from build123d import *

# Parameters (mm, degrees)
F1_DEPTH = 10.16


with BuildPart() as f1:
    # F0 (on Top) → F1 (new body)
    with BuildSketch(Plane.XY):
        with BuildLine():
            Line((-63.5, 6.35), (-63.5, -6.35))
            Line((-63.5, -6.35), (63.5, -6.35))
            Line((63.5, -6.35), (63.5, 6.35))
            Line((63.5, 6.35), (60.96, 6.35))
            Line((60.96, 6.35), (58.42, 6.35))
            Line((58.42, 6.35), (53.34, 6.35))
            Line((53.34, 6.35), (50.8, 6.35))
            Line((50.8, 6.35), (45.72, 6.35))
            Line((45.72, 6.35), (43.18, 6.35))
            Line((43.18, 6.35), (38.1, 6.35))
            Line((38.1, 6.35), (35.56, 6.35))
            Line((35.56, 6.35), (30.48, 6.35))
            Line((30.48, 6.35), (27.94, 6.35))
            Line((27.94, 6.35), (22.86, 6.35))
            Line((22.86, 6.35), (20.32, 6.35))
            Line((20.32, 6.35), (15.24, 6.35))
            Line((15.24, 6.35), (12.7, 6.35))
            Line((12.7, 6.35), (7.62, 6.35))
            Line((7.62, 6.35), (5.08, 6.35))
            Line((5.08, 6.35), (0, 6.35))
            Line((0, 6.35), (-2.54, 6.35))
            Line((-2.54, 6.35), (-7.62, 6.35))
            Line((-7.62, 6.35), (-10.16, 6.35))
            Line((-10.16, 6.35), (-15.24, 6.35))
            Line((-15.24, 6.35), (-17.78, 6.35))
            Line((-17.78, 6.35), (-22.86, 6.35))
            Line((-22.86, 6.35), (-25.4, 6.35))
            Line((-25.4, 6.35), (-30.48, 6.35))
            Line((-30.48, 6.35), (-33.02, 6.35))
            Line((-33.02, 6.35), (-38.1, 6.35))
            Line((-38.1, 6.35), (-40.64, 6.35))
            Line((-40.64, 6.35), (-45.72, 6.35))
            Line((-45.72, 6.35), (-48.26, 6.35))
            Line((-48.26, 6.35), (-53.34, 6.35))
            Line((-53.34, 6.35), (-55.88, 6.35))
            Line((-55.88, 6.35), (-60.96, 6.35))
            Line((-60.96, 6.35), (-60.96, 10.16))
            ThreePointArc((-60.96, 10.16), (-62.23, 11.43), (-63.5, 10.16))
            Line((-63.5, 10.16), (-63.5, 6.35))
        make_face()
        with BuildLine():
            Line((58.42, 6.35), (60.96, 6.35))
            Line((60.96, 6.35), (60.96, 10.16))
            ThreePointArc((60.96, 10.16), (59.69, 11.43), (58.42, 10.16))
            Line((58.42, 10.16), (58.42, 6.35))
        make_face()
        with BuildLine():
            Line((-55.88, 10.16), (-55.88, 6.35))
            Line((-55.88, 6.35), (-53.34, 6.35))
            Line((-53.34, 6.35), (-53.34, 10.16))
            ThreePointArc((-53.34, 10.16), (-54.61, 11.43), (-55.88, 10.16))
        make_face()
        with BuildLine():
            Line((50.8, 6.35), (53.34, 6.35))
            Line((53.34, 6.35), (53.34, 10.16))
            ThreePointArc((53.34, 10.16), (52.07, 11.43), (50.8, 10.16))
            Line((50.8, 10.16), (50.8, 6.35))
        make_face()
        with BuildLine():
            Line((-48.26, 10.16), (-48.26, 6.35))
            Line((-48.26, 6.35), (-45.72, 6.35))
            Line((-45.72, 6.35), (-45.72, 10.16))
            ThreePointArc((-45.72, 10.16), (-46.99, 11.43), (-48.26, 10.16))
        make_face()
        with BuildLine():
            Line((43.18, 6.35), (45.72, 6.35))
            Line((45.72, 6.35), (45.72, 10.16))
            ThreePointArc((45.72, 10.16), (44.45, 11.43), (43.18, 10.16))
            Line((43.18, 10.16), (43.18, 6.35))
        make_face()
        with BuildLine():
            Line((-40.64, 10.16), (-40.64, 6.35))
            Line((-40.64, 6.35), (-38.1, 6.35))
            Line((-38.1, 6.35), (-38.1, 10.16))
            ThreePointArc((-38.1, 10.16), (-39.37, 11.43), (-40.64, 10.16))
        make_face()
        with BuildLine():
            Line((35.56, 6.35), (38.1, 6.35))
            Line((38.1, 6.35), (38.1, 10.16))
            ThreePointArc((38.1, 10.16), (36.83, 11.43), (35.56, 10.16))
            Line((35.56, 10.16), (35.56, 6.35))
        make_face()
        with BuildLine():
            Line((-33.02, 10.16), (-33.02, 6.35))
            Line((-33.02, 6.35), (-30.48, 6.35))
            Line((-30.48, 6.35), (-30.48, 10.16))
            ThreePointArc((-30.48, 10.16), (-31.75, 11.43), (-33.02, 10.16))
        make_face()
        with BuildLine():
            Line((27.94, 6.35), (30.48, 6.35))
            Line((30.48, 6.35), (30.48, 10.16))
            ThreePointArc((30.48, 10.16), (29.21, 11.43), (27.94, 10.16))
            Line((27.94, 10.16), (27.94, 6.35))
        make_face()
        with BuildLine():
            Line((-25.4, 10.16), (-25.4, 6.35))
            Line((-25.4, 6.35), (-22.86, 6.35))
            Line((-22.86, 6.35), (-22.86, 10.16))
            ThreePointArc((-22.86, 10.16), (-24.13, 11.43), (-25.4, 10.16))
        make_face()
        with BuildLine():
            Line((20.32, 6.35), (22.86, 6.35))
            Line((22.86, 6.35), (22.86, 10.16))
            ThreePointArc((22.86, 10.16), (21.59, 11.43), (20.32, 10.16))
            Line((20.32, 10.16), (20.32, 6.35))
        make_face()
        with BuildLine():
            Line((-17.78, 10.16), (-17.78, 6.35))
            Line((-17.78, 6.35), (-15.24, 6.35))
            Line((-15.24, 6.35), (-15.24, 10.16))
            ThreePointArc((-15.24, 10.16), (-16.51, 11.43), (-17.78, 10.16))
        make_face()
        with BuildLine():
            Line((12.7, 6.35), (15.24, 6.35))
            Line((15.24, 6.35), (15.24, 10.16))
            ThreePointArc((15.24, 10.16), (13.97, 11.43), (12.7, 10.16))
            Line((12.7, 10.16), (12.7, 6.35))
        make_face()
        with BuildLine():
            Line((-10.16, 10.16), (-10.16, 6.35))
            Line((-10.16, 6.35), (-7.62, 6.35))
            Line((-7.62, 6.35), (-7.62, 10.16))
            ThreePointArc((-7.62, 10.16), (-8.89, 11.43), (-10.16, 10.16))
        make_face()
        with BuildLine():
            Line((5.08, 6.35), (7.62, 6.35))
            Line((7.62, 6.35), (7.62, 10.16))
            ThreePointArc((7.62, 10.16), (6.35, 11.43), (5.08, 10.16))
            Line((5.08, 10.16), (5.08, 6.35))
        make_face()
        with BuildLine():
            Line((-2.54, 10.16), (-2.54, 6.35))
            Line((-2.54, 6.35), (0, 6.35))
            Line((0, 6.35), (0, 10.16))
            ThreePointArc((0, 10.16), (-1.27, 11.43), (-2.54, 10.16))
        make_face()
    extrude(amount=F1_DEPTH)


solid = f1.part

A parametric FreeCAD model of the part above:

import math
import FreeCAD as App
import Part
import Sketcher
from FreeCAD import Vector
Q = App.Units.Quantity

doc = App.newDocument("Part")
params = doc.addObject("Spreadsheet::Sheet", "Params")
for row, (alias, value) in enumerate([
    ("sketch1_width", "5 in"),
    ("sketch1_radius", "0.05 in"),
    ("sketch1_height", "0.5 in"),
    ("sketch1_height2", "0.15 in"),
    ("pad1_length", "0.4 in"),
], start=1):
    params.set(f"A{row}", alias)
    params.set(f"B{row}", "=" + value)
    params.setAlias(f"B{row}", alias)

body = doc.addObject("PartDesign::Body", "Body")

sketch1 = doc.addObject("Sketcher::SketchObject", "Sketch")
body.addObject(sketch1)
sketch1.AttachmentSupport = (doc.XY_Plane, [""])
sketch1.MapMode = "FlatFace"
sketch1.addGeometry([
    Part.LineSegment(Vector(-63.5, -6.3, 0), Vector(63.5, -6.3, 0)),
    Part.LineSegment(Vector(63.5, -6.3, 0), Vector(63.5, 6.3, 0)),
    Part.LineSegment(Vector(63.5, 6.3, 0), Vector(61, 6.3, 0)),
    Part.LineSegment(Vector(61, 6.3, 0), Vector(61, 10.2, 0)),
    Part.ArcOfCircle(Part.Circle(Vector(59.7, 10.2, 0), Vector(0, 0, 1), 1.3), math.radians(0), math.radians(180)),
    Part.LineSegment(Vector(58.4, 10.2, 0), Vector(58.4, 6.3, 0)),
    Part.LineSegment(Vector(58.4, 6.3, 0), Vector(53.3, 6.3, 0)),
    Part.LineSegment(Vector(53.3, 6.3, 0), Vector(53.3, 10.2, 0)),
    Part.ArcOfCircle(Part.Circle(Vector(52.1, 10.2, 0), Vector(0, 0, 1), 1.3), math.radians(0), math.radians(180)),
    Part.LineSegment(Vector(50.8, 10.2, 0), Vector(50.8, 6.3, 0)),
    Part.LineSegment(Vector(50.8, 6.3, 0), Vector(45.7, 6.3, 0)),
    Part.LineSegment(Vector(45.7, 6.3, 0), Vector(45.7, 10.2, 0)),
    Part.ArcOfCircle(Part.Circle(Vector(44.5, 10.2, 0), Vector(0, 0, 1), 1.3), math.radians(0), math.radians(180)),
    Part.LineSegment(Vector(43.2, 10.2, 0), Vector(43.2, 6.3, 0)),
    Part.LineSegment(Vector(43.2, 6.3, 0), Vector(38.1, 6.3, 0)),
    Part.LineSegment(Vector(38.1, 6.3, 0), Vector(38.1, 10.2, 0)),
    Part.ArcOfCircle(Part.Circle(Vector(36.8, 10.2, 0), Vector(0, 0, 1), 1.3), math.radians(0), math.radians(180)),
    Part.LineSegment(Vector(35.6, 10.2, 0), Vector(35.6, 6.3, 0)),
    Part.LineSegment(Vector(35.6, 6.3, 0), Vector(30.5, 6.3, 0)),
    Part.LineSegment(Vector(30.5, 6.3, 0), Vector(30.5, 10.2, 0)),
    Part.ArcOfCircle(Part.Circle(Vector(29.2, 10.2, 0), Vector(0, 0, 1), 1.3), math.radians(0), math.radians(180)),
    Part.LineSegment(Vector(27.9, 10.2, 0), Vector(27.9, 6.3, 0)),
    Part.LineSegment(Vector(27.9, 6.3, 0), Vector(22.9, 6.3, 0)),
    Part.LineSegment(Vector(22.9, 6.3, 0), Vector(22.9, 10.2, 0)),
    Part.ArcOfCircle(Part.Circle(Vector(21.6, 10.2, 0), Vector(0, 0, 1), 1.3), math.radians(0), math.radians(180)),
    Part.LineSegment(Vector(20.3, 10.2, 0), Vector(20.3, 6.3, 0)),
    Part.LineSegment(Vector(20.3, 6.3, 0), Vector(15.2, 6.3, 0)),
    Part.LineSegment(Vector(15.2, 6.3, 0), Vector(15.2, 10.2, 0)),
    Part.ArcOfCircle(Part.Circle(Vector(14, 10.2, 0), Vector(0, 0, 1), 1.3), math.radians(0), math.radians(180)),
    Part.LineSegment(Vector(12.7, 10.2, 0), Vector(12.7, 6.3, 0)),
    Part.LineSegment(Vector(12.7, 6.3, 0), Vector(7.6, 6.3, 0)),
    Part.LineSegment(Vector(7.6, 6.3, 0), Vector(7.6, 10.2, 0)),
    Part.ArcOfCircle(Part.Circle(Vector(6.3, 10.2, 0), Vector(0, 0, 1), 1.3), math.radians(0), math.radians(180)),
    Part.LineSegment(Vector(5.1, 10.2, 0), Vector(5.1, 6.3, 0)),
    Part.LineSegment(Vector(5.1, 6.3, 0), Vector(0, 6.3, 0)),
    Part.LineSegment(Vector(0, 6.3, 0), Vector(0, 10.2, 0)),
    Part.ArcOfCircle(Part.Circle(Vector(-1.3, 10.2, 0), Vector(0, 0, 1), 1.3), math.radians(0), math.radians(180)),
    Part.LineSegment(Vector(-2.5, 10.2, 0), Vector(-2.5, 6.3, 0)),
    Part.LineSegment(Vector(-2.5, 6.3, 0), Vector(-7.6, 6.3, 0)),
    Part.LineSegment(Vector(-7.6, 6.3, 0), Vector(-7.6, 10.2, 0)),
    Part.ArcOfCircle(Part.Circle(Vector(-8.9, 10.2, 0), Vector(0, 0, 1), 1.3), math.radians(0), math.radians(180)),
    Part.LineSegment(Vector(-10.2, 10.2, 0), Vector(-10.2, 6.3, 0)),
    Part.LineSegment(Vector(-10.2, 6.3, 0), Vector(-15.2, 6.3, 0)),
    Part.LineSegment(Vector(-15.2, 6.3, 0), Vector(-15.2, 10.2, 0)),
    Part.ArcOfCircle(Part.Circle(Vector(-16.5, 10.2, 0), Vector(0, 0, 1), 1.3), math.radians(0), math.radians(180)),
    Part.LineSegment(Vector(-17.8, 10.2, 0), Vector(-17.8, 6.3, 0)),
    Part.LineSegment(Vector(-17.8, 6.3, 0), Vector(-22.9, 6.3, 0)),
    Part.LineSegment(Vector(-22.9, 6.3, 0), Vector(-22.9, 10.2, 0)),
    Part.ArcOfCircle(Part.Circle(Vector(-24.1, 10.2, 0), Vector(0, 0, 1), 1.3), math.radians(0), math.radians(180)),
    Part.LineSegment(Vector(-25.4, 10.2, 0), Vector(-25.4, 6.3, 0)),
    Part.LineSegment(Vector(-25.4, 6.3, 0), Vector(-30.5, 6.3, 0)),
    Part.LineSegment(Vector(-30.5, 6.3, 0), Vector(-30.5, 10.2, 0)),
    Part.ArcOfCircle(Part.Circle(Vector(-31.8, 10.2, 0), Vector(0, 0, 1), 1.3), math.radians(0), math.radians(180)),
    Part.LineSegment(Vector(-33, 10.2, 0), Vector(-33, 6.3, 0)),
    Part.LineSegment(Vector(-33, 6.3, 0), Vector(-38.1, 6.3, 0)),
    Part.LineSegment(Vector(-38.1, 6.3, 0), Vector(-38.1, 10.2, 0)),
    Part.ArcOfCircle(Part.Circle(Vector(-39.4, 10.2, 0), Vector(0, 0, 1), 1.3), math.radians(0), math.radians(180)),
    Part.LineSegment(Vector(-40.6, 10.2, 0), Vector(-40.6, 6.3, 0)),
    Part.LineSegment(Vector(-40.6, 6.3, 0), Vector(-45.7, 6.3, 0)),
    Part.LineSegment(Vector(-45.7, 6.3, 0), Vector(-45.7, 10.2, 0)),
    Part.ArcOfCircle(Part.Circle(Vector(-47, 10.2, 0), Vector(0, 0, 1), 1.3), math.radians(0), math.radians(180)),
    Part.LineSegment(Vector(-48.3, 10.2, 0), Vector(-48.3, 6.3, 0)),
    Part.LineSegment(Vector(-48.3, 6.3, 0), Vector(-53.3, 6.3, 0)),
    Part.LineSegment(Vector(-53.3, 6.3, 0), Vector(-53.3, 10.2, 0)),
    Part.ArcOfCircle(Part.Circle(Vector(-54.6, 10.2, 0), Vector(0, 0, 1), 1.3), math.radians(0), math.radians(180)),
    Part.LineSegment(Vector(-55.9, 10.2, 0), Vector(-55.9, 6.3, 0)),
    Part.LineSegment(Vector(-55.9, 6.3, 0), Vector(-61, 6.3, 0)),
    Part.LineSegment(Vector(-61, 6.3, 0), Vector(-61, 10.2, 0)),
    Part.ArcOfCircle(Part.Circle(Vector(-62.2, 10.2, 0), Vector(0, 0, 1), 1.3), math.radians(0), math.radians(180)),
    Part.LineSegment(Vector(-63.5, 10.2, 0), Vector(-63.5, -6.3, 0)),
], False)
sketch1.addConstraint([
    Sketcher.Constraint("Coincident", 0, 2, 1, 1),
    Sketcher.Constraint("Coincident", 1, 2, 2, 1),
    Sketcher.Constraint("Coincident", 2, 2, 3, 1),
    Sketcher.Constraint("Tangent", 3, 2, 4, 1),
    Sketcher.Constraint("Tangent", 4, 2, 5, 1),
    Sketcher.Constraint("Coincident", 5, 2, 6, 1),
    Sketcher.Constraint("Coincident", 6, 2, 7, 1),
    Sketcher.Constraint("Tangent", 7, 2, 8, 1),
    Sketcher.Constraint("Tangent", 8, 2, 9, 1),
    Sketcher.Constraint("Coincident", 9, 2, 10, 1),
    Sketcher.Constraint("Coincident", 10, 2, 11, 1),
    Sketcher.Constraint("Tangent", 11, 2, 12, 1),
    Sketcher.Constraint("Tangent", 12, 2, 13, 1),
    Sketcher.Constraint("Coincident", 13, 2, 14, 1),
    Sketcher.Constraint("Coincident", 14, 2, 15, 1),
    Sketcher.Constraint("Tangent", 15, 2, 16, 1),
    Sketcher.Constraint("Tangent", 16, 2, 17, 1),
    Sketcher.Constraint("Coincident", 17, 2, 18, 1),
    Sketcher.Constraint("Coincident", 18, 2, 19, 1),
    Sketcher.Constraint("Tangent", 19, 2, 20, 1),
    Sketcher.Constraint("Tangent", 20, 2, 21, 1),
    Sketcher.Constraint("Coincident", 21, 2, 22, 1),
    Sketcher.Constraint("Coincident", 22, 2, 23, 1),
    Sketcher.Constraint("Tangent", 23, 2, 24, 1),
    Sketcher.Constraint("Tangent", 24, 2, 25, 1),
    Sketcher.Constraint("Coincident", 25, 2, 26, 1),
    Sketcher.Constraint("Coincident", 26, 2, 27, 1),
    Sketcher.Constraint("Tangent", 27, 2, 28, 1),
    Sketcher.Constraint("Tangent", 28, 2, 29, 1),
    Sketcher.Constraint("Coincident", 29, 2, 30, 1),
    Sketcher.Constraint("Coincident", 30, 2, 31, 1),
    Sketcher.Constraint("Tangent", 31, 2, 32, 1),
    Sketcher.Constraint("Tangent", 32, 2, 33, 1),
    Sketcher.Constraint("Coincident", 33, 2, 34, 1),
    Sketcher.Constraint("Coincident", 34, 2, 35, 1),
    Sketcher.Constraint("Tangent", 35, 2, 36, 1),
    Sketcher.Constraint("Tangent", 36, 2, 37, 1),
    Sketcher.Constraint("Coincident", 37, 2, 38, 1),
    Sketcher.Constraint("Coincident", 38, 2, 39, 1),
    Sketcher.Constraint("Tangent", 39, 2, 40, 1),
    Sketcher.Constraint("Tangent", 40, 2, 41, 1),
    Sketcher.Constraint("Coincident", 41, 2, 42, 1),
    Sketcher.Constraint("Coincident", 42, 2, 43, 1),
    Sketcher.Constraint("Tangent", 43, 2, 44, 1),
    Sketcher.Constraint("Tangent", 44, 2, 45, 1),
    Sketcher.Constraint("Coincident", 45, 2, 46, 1),
    Sketcher.Constraint("Coincident", 46, 2, 47, 1),
    Sketcher.Constraint("Tangent", 47, 2, 48, 1),
    Sketcher.Constraint("Tangent", 48, 2, 49, 1),
    Sketcher.Constraint("Coincident", 49, 2, 50, 1),
    Sketcher.Constraint("Coincident", 50, 2, 51, 1),
    Sketcher.Constraint("Tangent", 51, 2, 52, 1),
    Sketcher.Constraint("Tangent", 52, 2, 53, 1),
    Sketcher.Constraint("Coincident", 53, 2, 54, 1),
    Sketcher.Constraint("Coincident", 54, 2, 55, 1),
    Sketcher.Constraint("Tangent", 55, 2, 56, 1),
    Sketcher.Constraint("Tangent", 56, 2, 57, 1),
    Sketcher.Constraint("Coincident", 57, 2, 58, 1),
    Sketcher.Constraint("Coincident", 58, 2, 59, 1),
    Sketcher.Constraint("Tangent", 59, 2, 60, 1),
    Sketcher.Constraint("Tangent", 60, 2, 61, 1),
    Sketcher.Constraint("Coincident", 61, 2, 62, 1),
    Sketcher.Constraint("Coincident", 62, 2, 63, 1),
    Sketcher.Constraint("Tangent", 63, 2, 64, 1),
    Sketcher.Constraint("Tangent", 64, 2, 65, 1),
    Sketcher.Constraint("Coincident", 65, 2, 66, 1),
    Sketcher.Constraint("Coincident", 66, 2, 67, 1),
    Sketcher.Constraint("Tangent", 67, 2, 68, 1),
    Sketcher.Constraint("Tangent", 68, 2, 69, 1),
    Sketcher.Constraint("Coincident", 69, 2, 0, 1),
    Sketcher.Constraint("Horizontal", 0),
    Sketcher.Constraint("Vertical", 1),
    Sketcher.Constraint("Horizontal", 2),
    Sketcher.Constraint("Vertical", 3),
    Sketcher.Constraint("Vertical", 5),
    Sketcher.Constraint("Horizontal", 6),
    Sketcher.Constraint("Vertical", 7),
    Sketcher.Constraint("Vertical", 9),
    Sketcher.Constraint("Horizontal", 10),
    Sketcher.Constraint("Vertical", 11),
    Sketcher.Constraint("Vertical", 13),
    Sketcher.Constraint("Horizontal", 14),
    Sketcher.Constraint("Vertical", 15),
    Sketcher.Constraint("Vertical", 17),
    Sketcher.Constraint("Horizontal", 18),
    Sketcher.Constraint("Vertical", 19),
    Sketcher.Constraint("Vertical", 21),
    Sketcher.Constraint("Horizontal", 22),
    Sketcher.Constraint("Vertical", 23),
    Sketcher.Constraint("Vertical", 25),
    Sketcher.Constraint("Horizontal", 26),
    Sketcher.Constraint("Vertical", 27),
    Sketcher.Constraint("Vertical", 29),
    Sketcher.Constraint("Horizontal", 30),
    Sketcher.Constraint("Vertical", 31),
    Sketcher.Constraint("Vertical", 33),
    Sketcher.Constraint("Horizontal", 34),
    Sketcher.Constraint("Vertical", 35),
    Sketcher.Constraint("Vertical", 37),
    Sketcher.Constraint("Horizontal", 38),
    Sketcher.Constraint("Vertical", 39),
    Sketcher.Constraint("Vertical", 41),
    Sketcher.Constraint("Horizontal", 42),
    Sketcher.Constraint("Vertical", 43),
    Sketcher.Constraint("Vertical", 45),
    Sketcher.Constraint("Horizontal", 46),
    Sketcher.Constraint("Vertical", 47),
    Sketcher.Constraint("Vertical", 49),
    Sketcher.Constraint("Horizontal", 50),
    Sketcher.Constraint("Vertical", 51),
    Sketcher.Constraint("Vertical", 53),
    Sketcher.Constraint("Horizontal", 54),
    Sketcher.Constraint("Vertical", 55),
    Sketcher.Constraint("Vertical", 57),
    Sketcher.Constraint("Horizontal", 58),
    Sketcher.Constraint("Vertical", 59),
    Sketcher.Constraint("Vertical", 61),
    Sketcher.Constraint("Horizontal", 62),
    Sketcher.Constraint("Vertical", 63),
    Sketcher.Constraint("Vertical", 65),
    Sketcher.Constraint("Horizontal", 66),
    Sketcher.Constraint("Vertical", 67),
    Sketcher.Constraint("Vertical", 69),
    Sketcher.Constraint("Equal", 4, 8),
    Sketcher.Constraint("Equal", 8, 12),
    Sketcher.Constraint("Equal", 12, 16),
    Sketcher.Constraint("Equal", 16, 20),
    Sketcher.Constraint("Equal", 20, 24),
    Sketcher.Constraint("Equal", 24, 28),
    Sketcher.Constraint("Equal", 28, 32),
    Sketcher.Constraint("Equal", 32, 36),
    Sketcher.Constraint("Equal", 36, 40),
    Sketcher.Constraint("Equal", 40, 44),
    Sketcher.Constraint("Equal", 44, 48),
    Sketcher.Constraint("Equal", 48, 52),
    Sketcher.Constraint("Equal", 52, 56),
    Sketcher.Constraint("Equal", 56, 60),
    Sketcher.Constraint("Equal", 60, 64),
    Sketcher.Constraint("Equal", 64, 68),
    Sketcher.Constraint("Symmetric", 1, 2, 69, 2, -1, 1),
    Sketcher.Constraint("Symmetric", 30, 2, 38, 2, -2),
    Sketcher.Constraint("Symmetric", 26, 2, 42, 2, -2),
    Sketcher.Constraint("Symmetric", 22, 2, 46, 2, -2),
    Sketcher.Constraint("Symmetric", 18, 2, 50, 2, -2),
    Sketcher.Constraint("Symmetric", 14, 2, 54, 2, -2),
    Sketcher.Constraint("Symmetric", 10, 2, 58, 2, -2),
    Sketcher.Constraint("Symmetric", 6, 2, 62, 2, -2),
    Sketcher.Constraint("Symmetric", 2, 2, 66, 2, -2),
    Sketcher.Constraint("PointOnObject", 34, 2, -2),
    Sketcher.Constraint("Horizontal", 4, 3, 8, 3),
    Sketcher.Constraint("Horizontal", 8, 3, 12, 3),
    Sketcher.Constraint("Horizontal", 12, 3, 16, 3),
    Sketcher.Constraint("Horizontal", 16, 3, 20, 3),
    Sketcher.Constraint("Horizontal", 20, 3, 24, 3),
    Sketcher.Constraint("Horizontal", 24, 3, 28, 3),
    Sketcher.Constraint("Horizontal", 28, 3, 32, 3),
    Sketcher.Constraint("Horizontal", 32, 3, 36, 3),
    Sketcher.Constraint("Horizontal", 36, 3, 40, 3),
    Sketcher.Constraint("Horizontal", 40, 3, 44, 3),
    Sketcher.Constraint("Horizontal", 44, 3, 48, 3),
    Sketcher.Constraint("Horizontal", 48, 3, 52, 3),
    Sketcher.Constraint("Horizontal", 52, 3, 56, 3),
    Sketcher.Constraint("Horizontal", 56, 3, 60, 3),
    Sketcher.Constraint("Horizontal", 60, 3, 64, 3),
    Sketcher.Constraint("Horizontal", 64, 3, 68, 3),
    Sketcher.Constraint("Horizontal", 2, 2, 5, 2),
    Sketcher.Constraint("Horizontal", 6, 2, 9, 2),
    Sketcher.Constraint("Horizontal", 10, 2, 13, 2),
    Sketcher.Constraint("Horizontal", 14, 2, 17, 2),
    Sketcher.Constraint("Horizontal", 18, 2, 21, 2),
    Sketcher.Constraint("Horizontal", 22, 2, 25, 2),
    Sketcher.Constraint("Horizontal", 26, 2, 29, 2),
    Sketcher.Constraint("Horizontal", 30, 2, 33, 2),
    Sketcher.Constraint("Equal", 6, 10),
    Sketcher.Constraint("Equal", 10, 14),
    Sketcher.Constraint("Equal", 14, 18),
    Sketcher.Constraint("Equal", 18, 22),
    Sketcher.Constraint("Equal", 22, 26),
    Sketcher.Constraint("Equal", 26, 30),
    Sketcher.Constraint("Equal", 30, 34),
    Sketcher.Constraint("DistanceX", 0, 1, 0, 2, Q("5 in")),
    Sketcher.Constraint("Radius", 4, Q("0.05 in")),
    Sketcher.Constraint("DistanceY", 1, 1, 1, 2, Q("0.5 in")),
    Sketcher.Constraint("DistanceY", 3, 1, 3, 2, Q("0.15 in")),
])
sketch1.setExpression("Constraints[180]", "Params.sketch1_width")
sketch1.setExpression("Constraints[181]", "Params.sketch1_radius")
sketch1.setExpression("Constraints[182]", "Params.sketch1_height")
sketch1.setExpression("Constraints[183]", "Params.sketch1_height2")
pad1 = doc.addObject("PartDesign::Pad", "Pad")
body.addObject(pad1)
pad1.Profile = sketch1
pad1.setExpression("Length", "Params.pad1_length")

doc.recompute()
